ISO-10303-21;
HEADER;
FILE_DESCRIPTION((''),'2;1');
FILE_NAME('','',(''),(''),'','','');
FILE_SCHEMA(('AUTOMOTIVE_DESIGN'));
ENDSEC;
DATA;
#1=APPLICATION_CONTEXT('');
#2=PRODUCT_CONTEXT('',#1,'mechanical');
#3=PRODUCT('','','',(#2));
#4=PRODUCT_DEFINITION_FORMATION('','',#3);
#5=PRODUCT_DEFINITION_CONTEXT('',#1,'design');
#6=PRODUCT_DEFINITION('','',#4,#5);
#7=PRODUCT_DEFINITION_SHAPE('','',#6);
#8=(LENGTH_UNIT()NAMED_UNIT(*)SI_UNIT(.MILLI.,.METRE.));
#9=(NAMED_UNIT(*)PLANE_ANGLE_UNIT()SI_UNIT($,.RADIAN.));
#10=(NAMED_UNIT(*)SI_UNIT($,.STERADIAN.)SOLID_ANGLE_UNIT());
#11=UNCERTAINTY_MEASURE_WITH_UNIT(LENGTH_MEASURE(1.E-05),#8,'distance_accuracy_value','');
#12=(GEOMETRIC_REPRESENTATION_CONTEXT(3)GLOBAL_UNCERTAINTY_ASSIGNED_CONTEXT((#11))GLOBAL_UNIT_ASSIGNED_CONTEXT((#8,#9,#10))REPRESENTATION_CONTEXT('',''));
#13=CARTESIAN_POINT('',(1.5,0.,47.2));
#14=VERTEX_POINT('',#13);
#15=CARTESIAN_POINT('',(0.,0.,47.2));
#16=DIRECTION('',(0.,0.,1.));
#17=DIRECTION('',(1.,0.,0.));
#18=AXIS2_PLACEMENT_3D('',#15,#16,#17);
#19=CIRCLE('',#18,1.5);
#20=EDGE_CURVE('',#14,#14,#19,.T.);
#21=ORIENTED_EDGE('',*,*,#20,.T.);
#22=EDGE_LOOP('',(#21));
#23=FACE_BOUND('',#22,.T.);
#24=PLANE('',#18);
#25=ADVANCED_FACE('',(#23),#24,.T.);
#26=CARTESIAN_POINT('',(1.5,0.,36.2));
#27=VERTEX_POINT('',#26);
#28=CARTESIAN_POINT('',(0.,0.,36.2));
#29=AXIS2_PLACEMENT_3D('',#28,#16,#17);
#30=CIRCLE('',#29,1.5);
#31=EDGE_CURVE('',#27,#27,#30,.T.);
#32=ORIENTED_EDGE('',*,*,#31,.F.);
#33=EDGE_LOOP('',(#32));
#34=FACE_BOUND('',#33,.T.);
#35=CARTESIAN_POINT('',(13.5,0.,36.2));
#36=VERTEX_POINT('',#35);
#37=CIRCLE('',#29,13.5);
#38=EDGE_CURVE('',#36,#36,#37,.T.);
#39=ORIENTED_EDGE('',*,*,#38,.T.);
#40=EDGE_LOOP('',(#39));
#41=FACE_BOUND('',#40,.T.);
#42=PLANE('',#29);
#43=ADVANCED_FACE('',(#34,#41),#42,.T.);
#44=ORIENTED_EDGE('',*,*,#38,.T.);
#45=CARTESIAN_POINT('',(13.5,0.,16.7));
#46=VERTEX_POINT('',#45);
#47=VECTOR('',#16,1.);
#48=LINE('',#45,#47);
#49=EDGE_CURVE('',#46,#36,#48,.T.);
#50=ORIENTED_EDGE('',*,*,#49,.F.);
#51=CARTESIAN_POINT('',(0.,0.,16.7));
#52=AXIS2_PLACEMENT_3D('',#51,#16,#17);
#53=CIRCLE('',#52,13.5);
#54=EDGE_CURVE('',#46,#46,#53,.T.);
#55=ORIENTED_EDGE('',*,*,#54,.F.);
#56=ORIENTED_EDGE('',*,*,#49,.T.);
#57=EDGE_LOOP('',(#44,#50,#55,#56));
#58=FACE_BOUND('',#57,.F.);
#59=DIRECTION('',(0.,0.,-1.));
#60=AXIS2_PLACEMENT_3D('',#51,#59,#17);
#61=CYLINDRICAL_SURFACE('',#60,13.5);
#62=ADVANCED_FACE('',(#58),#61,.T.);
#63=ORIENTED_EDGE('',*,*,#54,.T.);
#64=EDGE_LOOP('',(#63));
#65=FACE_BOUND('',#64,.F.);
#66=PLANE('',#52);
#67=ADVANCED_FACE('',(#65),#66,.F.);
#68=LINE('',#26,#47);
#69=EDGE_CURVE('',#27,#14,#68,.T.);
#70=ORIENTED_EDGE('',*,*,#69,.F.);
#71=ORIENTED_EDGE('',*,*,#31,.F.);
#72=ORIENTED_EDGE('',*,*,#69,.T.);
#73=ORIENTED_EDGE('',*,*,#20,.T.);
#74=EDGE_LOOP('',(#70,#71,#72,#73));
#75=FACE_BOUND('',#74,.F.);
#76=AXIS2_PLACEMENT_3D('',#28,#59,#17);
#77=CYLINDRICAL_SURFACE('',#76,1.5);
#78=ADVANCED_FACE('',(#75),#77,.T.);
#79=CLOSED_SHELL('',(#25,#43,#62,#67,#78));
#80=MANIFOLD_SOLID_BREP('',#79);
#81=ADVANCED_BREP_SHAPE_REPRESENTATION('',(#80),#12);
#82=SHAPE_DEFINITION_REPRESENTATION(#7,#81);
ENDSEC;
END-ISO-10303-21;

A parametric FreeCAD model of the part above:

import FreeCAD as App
import Part
import Sketcher
Q = App.Units.Quantity

doc = App.newDocument("Part")
body = doc.addObject("PartDesign::Body", "Body")

sketch1 = body.newObject("Sketcher::SketchObject", "Sketch")
sketch1.AttachmentSupport = (doc.getObject("XY_Plane"), [""])
sketch1.MapMode = "FlatFace"
sketch1.AttachmentOffset = App.Placement(App.Vector(0, 0, 19.5), App.Rotation())
sketch1.addGeometry(Part.Circle(App.Vector(0, 0, 0), App.Vector(0, 0, 1), 1.5), False)
sketch1.addConstraint([
    Sketcher.Constraint("Coincident", 0, 3, -1, 1),
    Sketcher.Constraint("Diameter", 0, Q("3 mm")),
])
pad1 = body.newObject("PartDesign::Pad", "Pad")
pad1.Profile = sketch1
pad1.Length = 11
body2 = doc.addObject("PartDesign::Body", "Body001")

sketch2 = body2.newObject("Sketcher::SketchObject", "Sketch001")
sketch2.AttachmentSupport = (doc.getObject("XY_Plane001"), [""])
sketch2.MapMode = "FlatFace"
sketch2.addGeometry(Part.Circle(App.Vector(0, 0, 0), App.Vector(0, 0, 1), 13.5), False)
sketch2.addConstraint([
    Sketcher.Constraint("Coincident", 0, 3, -1, 1),
    Sketcher.Constraint("Diameter", 0, Q("27 mm")),
])
pad2 = body2.newObject("PartDesign::Pad", "Pad001")
pad2.Profile = sketch2
pad2.Length = 19.5
doc.recompute()

boolean = body2.newObject("PartDesign::Boolean", "Boolean")
boolean.Type = "Fuse"
boolean.addObjects([body])
body3 = doc.addObject("PartDesign::Body", "Body002")
doc.recompute()

body2.Placement = App.Placement(App.Vector(0, 0, 16.7), App.Rotation(App.Vector(0, 0, 1), 0))
boolean2 = body3.newObject("PartDesign::Boolean", "Boolean001")
boolean2.Type = "Fuse"
boolean2.addObjects([body2])

doc.recompute()
